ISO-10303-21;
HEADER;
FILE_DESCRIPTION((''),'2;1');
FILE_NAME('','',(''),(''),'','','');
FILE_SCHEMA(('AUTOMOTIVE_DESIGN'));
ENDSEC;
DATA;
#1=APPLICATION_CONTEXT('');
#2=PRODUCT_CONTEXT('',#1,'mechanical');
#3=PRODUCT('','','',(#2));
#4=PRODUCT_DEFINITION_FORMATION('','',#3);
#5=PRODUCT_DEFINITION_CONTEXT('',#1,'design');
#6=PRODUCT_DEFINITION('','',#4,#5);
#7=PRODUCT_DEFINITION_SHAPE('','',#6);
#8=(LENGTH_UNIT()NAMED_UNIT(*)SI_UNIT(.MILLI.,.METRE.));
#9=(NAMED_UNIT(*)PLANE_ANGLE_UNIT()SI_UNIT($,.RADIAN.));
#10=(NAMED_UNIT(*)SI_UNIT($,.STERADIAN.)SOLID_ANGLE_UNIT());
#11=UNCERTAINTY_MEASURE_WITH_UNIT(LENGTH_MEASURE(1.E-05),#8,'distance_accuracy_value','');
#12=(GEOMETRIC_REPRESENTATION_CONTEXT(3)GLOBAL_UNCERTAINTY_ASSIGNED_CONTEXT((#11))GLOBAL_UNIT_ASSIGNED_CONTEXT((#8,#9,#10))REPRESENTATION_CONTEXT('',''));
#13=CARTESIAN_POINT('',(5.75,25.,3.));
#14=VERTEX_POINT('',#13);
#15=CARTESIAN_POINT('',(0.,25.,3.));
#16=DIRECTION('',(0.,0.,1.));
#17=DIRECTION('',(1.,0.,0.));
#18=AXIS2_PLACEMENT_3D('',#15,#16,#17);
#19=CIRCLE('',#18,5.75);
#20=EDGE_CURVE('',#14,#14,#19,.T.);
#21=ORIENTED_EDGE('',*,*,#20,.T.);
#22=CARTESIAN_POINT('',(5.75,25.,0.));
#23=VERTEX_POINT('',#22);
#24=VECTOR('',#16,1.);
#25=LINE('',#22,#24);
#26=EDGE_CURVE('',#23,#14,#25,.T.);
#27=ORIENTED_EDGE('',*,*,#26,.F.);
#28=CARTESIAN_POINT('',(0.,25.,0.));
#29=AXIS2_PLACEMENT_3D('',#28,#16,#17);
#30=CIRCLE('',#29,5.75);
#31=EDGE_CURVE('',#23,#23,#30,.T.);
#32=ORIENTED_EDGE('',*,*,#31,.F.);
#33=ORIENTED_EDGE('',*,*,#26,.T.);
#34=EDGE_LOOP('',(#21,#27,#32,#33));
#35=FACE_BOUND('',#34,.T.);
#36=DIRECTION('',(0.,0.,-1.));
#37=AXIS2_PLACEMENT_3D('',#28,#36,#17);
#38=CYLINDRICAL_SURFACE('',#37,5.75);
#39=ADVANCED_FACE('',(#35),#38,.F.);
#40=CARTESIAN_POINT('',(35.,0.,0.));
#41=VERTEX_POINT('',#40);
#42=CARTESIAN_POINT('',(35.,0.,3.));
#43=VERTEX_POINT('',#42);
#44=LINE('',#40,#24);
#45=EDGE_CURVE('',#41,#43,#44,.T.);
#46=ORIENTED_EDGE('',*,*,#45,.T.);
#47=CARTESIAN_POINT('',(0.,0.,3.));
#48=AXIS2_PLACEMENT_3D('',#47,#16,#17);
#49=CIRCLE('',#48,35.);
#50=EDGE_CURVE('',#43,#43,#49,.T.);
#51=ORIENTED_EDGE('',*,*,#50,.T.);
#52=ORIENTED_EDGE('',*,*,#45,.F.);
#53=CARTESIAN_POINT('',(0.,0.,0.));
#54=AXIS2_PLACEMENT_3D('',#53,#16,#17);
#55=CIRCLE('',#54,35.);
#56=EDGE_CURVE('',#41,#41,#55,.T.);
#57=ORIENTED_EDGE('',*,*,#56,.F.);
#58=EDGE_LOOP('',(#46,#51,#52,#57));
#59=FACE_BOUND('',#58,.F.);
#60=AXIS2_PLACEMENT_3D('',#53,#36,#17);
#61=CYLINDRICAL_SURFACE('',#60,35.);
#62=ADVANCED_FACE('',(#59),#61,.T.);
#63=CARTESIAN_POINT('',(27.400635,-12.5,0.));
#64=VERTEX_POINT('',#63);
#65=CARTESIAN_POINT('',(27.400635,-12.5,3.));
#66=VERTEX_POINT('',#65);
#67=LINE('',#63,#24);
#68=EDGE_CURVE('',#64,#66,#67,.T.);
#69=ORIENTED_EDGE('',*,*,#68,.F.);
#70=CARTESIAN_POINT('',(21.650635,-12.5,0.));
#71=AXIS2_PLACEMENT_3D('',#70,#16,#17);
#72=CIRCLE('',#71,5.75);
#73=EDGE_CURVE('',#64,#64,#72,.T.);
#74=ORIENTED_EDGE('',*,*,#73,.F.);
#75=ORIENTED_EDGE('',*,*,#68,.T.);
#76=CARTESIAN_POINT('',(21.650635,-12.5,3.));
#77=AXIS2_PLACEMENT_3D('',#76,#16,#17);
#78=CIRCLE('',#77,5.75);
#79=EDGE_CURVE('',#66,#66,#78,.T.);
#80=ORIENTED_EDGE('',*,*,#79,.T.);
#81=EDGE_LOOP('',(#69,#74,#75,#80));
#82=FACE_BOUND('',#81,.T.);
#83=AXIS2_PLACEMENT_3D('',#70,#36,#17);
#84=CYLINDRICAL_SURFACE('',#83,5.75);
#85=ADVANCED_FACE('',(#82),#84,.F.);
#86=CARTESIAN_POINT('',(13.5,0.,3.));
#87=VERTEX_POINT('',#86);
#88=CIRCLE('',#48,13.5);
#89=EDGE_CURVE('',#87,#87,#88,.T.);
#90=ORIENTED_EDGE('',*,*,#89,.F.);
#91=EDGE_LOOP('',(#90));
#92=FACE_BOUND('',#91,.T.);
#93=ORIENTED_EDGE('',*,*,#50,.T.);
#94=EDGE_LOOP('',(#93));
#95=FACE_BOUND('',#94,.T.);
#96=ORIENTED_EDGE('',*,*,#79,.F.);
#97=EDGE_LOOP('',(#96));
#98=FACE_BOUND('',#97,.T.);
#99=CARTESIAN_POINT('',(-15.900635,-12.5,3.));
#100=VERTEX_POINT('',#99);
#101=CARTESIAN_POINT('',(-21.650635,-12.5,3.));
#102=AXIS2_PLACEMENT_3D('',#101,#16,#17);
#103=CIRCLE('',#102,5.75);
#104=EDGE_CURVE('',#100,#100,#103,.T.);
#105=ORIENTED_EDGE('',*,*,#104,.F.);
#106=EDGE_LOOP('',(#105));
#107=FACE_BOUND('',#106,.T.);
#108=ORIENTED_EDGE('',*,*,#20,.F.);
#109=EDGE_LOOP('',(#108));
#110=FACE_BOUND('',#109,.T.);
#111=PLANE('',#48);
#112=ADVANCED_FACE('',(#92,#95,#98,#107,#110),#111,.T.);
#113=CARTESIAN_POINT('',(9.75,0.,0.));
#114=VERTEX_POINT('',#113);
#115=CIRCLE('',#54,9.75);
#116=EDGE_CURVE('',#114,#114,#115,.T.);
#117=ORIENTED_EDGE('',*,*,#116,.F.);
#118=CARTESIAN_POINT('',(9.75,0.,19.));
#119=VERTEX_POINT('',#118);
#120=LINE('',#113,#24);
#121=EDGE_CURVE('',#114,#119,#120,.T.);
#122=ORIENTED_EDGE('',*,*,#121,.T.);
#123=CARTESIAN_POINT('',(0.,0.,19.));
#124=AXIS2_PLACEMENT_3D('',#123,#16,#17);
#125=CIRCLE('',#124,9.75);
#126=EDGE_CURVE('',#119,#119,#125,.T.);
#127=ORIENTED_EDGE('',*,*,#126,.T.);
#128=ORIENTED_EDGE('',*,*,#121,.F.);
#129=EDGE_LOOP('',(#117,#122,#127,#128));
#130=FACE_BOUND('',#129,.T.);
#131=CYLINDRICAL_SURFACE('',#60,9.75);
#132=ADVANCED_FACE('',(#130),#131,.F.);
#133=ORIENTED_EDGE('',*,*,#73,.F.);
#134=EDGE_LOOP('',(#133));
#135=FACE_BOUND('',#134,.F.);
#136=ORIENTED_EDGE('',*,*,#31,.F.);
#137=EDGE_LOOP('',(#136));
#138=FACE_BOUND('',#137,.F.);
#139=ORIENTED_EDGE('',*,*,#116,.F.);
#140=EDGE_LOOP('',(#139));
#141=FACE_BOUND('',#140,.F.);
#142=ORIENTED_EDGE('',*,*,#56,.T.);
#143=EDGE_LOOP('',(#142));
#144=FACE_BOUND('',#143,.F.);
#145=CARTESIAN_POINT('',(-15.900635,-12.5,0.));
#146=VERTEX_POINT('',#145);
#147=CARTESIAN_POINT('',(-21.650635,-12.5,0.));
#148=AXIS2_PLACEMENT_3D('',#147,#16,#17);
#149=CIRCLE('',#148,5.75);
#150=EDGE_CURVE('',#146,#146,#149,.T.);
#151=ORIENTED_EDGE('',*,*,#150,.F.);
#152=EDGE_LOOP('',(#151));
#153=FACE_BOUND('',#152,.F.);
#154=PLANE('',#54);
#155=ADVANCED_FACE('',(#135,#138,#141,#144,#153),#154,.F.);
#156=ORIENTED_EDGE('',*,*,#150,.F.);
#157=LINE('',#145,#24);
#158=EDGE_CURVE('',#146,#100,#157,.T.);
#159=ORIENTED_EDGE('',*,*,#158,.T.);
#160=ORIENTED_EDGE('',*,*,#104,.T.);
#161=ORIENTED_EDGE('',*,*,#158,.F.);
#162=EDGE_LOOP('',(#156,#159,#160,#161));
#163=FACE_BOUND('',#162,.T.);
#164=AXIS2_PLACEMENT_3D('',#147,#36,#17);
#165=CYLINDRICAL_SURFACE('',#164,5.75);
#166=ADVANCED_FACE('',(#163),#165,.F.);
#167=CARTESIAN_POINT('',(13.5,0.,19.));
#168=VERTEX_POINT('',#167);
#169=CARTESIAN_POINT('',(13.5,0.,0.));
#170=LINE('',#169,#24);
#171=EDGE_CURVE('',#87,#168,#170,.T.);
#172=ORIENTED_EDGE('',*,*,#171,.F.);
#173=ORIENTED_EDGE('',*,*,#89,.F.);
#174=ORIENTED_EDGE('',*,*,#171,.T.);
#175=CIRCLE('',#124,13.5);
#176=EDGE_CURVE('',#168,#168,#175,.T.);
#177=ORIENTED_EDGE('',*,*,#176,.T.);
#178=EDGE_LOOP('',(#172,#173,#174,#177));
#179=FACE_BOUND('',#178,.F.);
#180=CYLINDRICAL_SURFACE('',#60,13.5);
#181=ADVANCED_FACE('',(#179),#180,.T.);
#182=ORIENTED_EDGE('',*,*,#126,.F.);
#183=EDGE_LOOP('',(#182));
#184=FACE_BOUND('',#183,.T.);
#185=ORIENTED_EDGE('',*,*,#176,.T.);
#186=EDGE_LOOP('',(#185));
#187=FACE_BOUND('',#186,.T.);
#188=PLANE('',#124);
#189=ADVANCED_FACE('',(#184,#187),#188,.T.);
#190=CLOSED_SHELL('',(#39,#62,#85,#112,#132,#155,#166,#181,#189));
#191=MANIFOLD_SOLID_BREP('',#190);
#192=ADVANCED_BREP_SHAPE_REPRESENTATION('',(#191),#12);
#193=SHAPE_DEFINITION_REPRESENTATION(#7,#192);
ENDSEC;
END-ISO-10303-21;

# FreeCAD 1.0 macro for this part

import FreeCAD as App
import Part
import Sketcher

doc = App.newDocument("Part")
body = doc.addObject("PartDesign::Body", "Body")

# Sketch on XY plane
sketch1 = body.newObject("Sketcher::SketchObject", "Sketch")
sketch1.AttachmentSupport = (doc.getObject("XY_Plane"), [""])
sketch1.MapMode = "FlatFace"
sketch1.addGeometry([
    Part.Circle(App.Vector(0, 0, 0), App.Vector(0, 0, 1), 35),  # 0
    Part.Circle(App.Vector(-21.650635, -12.5, 0), App.Vector(0, 0, 1), 5.75),  # 1
    Part.Circle(App.Vector(0, 0, 0), App.Vector(0, 0, 1), 13.5),  # 2
    Part.Circle(App.Vector(21.650635, -12.5, 0), App.Vector(0, 0, 1), 5.75),  # 3
    Part.Circle(App.Vector(0, 25, 0), App.Vector(0, 0, 1), 5.75),  # 4
], False)
sketch1.addConstraint([
    Sketcher.Constraint("Coincident", 0, 3, -1, 1),
    Sketcher.Constraint("Coincident", 2, 3, -1, 1),
    Sketcher.Constraint("Equal", 1, 3),
    Sketcher.Constraint("Equal", 3, 4),
    Sketcher.Constraint("Symmetric", 1, 3, 3, 3, -2),
    Sketcher.Constraint("PointOnObject", 4, 3, -2),
    Sketcher.Constraint("Diameter", 0, 70.0),
    Sketcher.Constraint("Diameter", 2, 27.0),
    Sketcher.Constraint("Diameter", 1, 11.5),
    Sketcher.Constraint("DistanceY", -1, 1, 4, 3, 25.0),
    Sketcher.Constraint("DistanceY", 1, 3, -1, 1, 12.5),
    Sketcher.Constraint("DistanceX", 1, 3, 3, 3, 43.30127),
])
pad1 = body.newObject("PartDesign::Pad", "Pad")
pad1.Profile = sketch1
pad1.Length = 3

# Sketch on XY plane
sketch2 = body.newObject("Sketcher::SketchObject", "Sketch001")
sketch2.AttachmentSupport = (doc.getObject("XY_Plane"), [""])
sketch2.MapMode = "FlatFace"
sketch2.addGeometry([
    Part.Circle(App.Vector(0, 0, 0), App.Vector(0, 0, 1), 13.5),
    Part.Circle(App.Vector(0, 0, 0), App.Vector(0, 0, 1), 9.75),
], False)
sketch2.addConstraint([
    Sketcher.Constraint("Coincident", 0, 3, -1, 1),
    Sketcher.Constraint("Coincident", 1, 3, -1, 1),
    Sketcher.Constraint("Diameter", 0, 27.0),
    Sketcher.Constraint("Diameter", 1, 19.5),
])
pad2 = body.newObject("PartDesign::Pad", "Pad001")
pad2.Profile = sketch2
pad2.Length = 19

doc.recompute()
